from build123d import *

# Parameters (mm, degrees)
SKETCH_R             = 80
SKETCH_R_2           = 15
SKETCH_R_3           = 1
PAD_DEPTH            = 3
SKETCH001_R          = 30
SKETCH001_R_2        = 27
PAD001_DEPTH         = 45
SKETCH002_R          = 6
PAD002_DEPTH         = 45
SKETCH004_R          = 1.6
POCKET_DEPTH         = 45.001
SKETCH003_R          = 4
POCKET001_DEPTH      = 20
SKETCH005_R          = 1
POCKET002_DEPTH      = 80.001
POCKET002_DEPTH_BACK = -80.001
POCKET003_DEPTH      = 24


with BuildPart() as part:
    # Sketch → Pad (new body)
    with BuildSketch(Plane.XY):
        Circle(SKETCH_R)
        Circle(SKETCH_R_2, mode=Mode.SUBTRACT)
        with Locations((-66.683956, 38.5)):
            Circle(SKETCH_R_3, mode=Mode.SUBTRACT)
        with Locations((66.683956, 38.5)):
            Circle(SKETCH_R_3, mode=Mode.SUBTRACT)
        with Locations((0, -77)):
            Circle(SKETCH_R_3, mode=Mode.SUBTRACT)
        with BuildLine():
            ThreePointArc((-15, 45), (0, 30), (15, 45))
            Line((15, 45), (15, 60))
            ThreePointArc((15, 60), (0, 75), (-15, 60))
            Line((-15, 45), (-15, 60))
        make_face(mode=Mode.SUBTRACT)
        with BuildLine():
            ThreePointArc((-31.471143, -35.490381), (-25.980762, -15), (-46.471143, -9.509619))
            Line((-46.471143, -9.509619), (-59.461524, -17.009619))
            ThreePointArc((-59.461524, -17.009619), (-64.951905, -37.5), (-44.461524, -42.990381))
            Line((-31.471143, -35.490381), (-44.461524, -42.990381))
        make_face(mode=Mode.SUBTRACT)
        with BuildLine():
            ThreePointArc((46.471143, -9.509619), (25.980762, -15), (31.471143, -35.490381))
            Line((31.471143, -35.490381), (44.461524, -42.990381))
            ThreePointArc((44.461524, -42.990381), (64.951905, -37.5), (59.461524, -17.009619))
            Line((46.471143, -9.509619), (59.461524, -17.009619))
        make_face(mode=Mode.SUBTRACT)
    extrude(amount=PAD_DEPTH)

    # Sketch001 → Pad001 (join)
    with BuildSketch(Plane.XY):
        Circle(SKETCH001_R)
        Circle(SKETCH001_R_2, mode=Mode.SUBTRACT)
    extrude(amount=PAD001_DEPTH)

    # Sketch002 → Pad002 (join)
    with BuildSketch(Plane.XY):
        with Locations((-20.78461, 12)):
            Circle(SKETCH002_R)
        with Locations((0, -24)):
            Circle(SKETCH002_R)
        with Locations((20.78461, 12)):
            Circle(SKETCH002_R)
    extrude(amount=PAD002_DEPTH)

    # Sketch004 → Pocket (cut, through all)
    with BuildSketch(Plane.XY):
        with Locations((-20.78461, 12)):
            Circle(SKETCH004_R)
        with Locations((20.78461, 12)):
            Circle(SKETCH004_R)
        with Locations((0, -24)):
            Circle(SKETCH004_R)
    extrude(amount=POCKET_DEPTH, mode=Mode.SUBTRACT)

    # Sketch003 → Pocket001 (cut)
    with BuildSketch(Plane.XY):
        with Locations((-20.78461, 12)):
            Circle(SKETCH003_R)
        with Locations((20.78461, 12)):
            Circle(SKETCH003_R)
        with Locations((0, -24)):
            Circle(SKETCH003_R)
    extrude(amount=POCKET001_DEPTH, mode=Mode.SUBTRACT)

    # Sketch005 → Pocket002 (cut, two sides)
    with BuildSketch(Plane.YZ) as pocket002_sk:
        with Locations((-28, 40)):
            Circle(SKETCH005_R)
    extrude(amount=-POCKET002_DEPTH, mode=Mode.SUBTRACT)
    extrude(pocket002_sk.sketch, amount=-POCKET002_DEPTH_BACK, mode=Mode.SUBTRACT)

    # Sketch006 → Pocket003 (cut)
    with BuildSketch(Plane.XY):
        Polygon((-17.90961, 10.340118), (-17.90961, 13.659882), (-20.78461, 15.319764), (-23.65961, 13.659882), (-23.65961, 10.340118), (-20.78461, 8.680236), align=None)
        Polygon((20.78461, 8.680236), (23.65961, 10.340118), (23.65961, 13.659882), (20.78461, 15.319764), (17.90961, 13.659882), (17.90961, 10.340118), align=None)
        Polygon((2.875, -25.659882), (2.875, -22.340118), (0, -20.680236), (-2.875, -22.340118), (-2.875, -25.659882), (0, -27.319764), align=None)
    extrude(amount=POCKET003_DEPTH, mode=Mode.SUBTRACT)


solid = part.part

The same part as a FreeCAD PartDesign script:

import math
import FreeCAD as App
import Part
import Sketcher
Q = App.Units.Quantity


def add_polygon(sketch, points):
    """Adds a closed chain of lines whose ends are joined by coincident constraints."""
    first, n = sketch.GeometryCount, len(points)
    for a, b in zip(points, points[1:] + points[:1]):
        sketch.addGeometry(Part.LineSegment(App.Vector(*a, 0), App.Vector(*b, 0)), False)
    for i in range(n):
        sketch.addConstraint(Sketcher.Constraint("Coincident", first + i, 2, first + (i + 1) % n, 1))

doc = App.newDocument("Part")
body = doc.addObject("PartDesign::Body", "Body")

sketch1 = doc.addObject("Sketcher::SketchObject", "Sketch")
body.addObject(sketch1)
sketch1.AttachmentSupport = (doc.XY_Plane, [""])
sketch1.MapMode = "FlatFace"
sketch1.addGeometry(Part.Circle(App.Vector(0, 0, 0), App.Vector(0, 0, 1), 80), False)
sketch1.addGeometry(Part.ArcOfCircle(Part.Circle(App.Vector(-39, -22.5, 0), App.Vector(0, 0, 1), 15), math.radians(-60), math.radians(120)), False)
sketch1.addGeometry(Part.LineSegment(App.Vector(-31.5, -35.5, 0), App.Vector(-44.5, -43, 0)), False)
sketch1.addGeometry(Part.ArcOfCircle(Part.Circle(App.Vector(-52, -30, 0), App.Vector(0, 0, 1), 15), math.radians(120), math.radians(300)), False)
sketch1.addGeometry(Part.LineSegment(App.Vector(-59.5, -17, 0), App.Vector(-46.5, -9.5, 0)), False)
sketch1.addGeometry(Part.Circle(App.Vector(0, -77, 0), App.Vector(0, 0, 1), 1), False)
sketch1.addGeometry(Part.ArcOfCircle(Part.Circle(App.Vector(39, -22.5, 0), App.Vector(0, 0, 1), 15), math.radians(60), math.radians(240)), False)
sketch1.addGeometry(Part.LineSegment(App.Vector(46.5, -9.5, 0), App.Vector(59.5, -17, 0)), False)
sketch1.addGeometry(Part.ArcOfCircle(Part.Circle(App.Vector(52, -30, 0), App.Vector(0, 0, 1), 15), math.radians(-120), math.radians(60)), False)
sketch1.addGeometry(Part.LineSegment(App.Vector(44.5, -43, 0), App.Vector(31.5, -35.5, 0)), False)
sketch1.addGeometry(Part.Circle(App.Vector(-66.7, 38.5, 0), App.Vector(0, 0, 1), 1), False)
sketch1.addGeometry(Part.Circle(App.Vector(0, 0, 0), App.Vector(0, 0, 1), 15), False)
sketch1.addGeometry(Part.ArcOfCircle(Part.Circle(App.Vector(0, 45, 0), App.Vector(0, 0, 1), 15), math.radians(180), math.radians(360)), False)
sketch1.addGeometry(Part.LineSegment(App.Vector(-15, 45, 0), App.Vector(-15, 60, 0)), False)
sketch1.addGeometry(Part.ArcOfCircle(Part.Circle(App.Vector(0, 60, 0), App.Vector(0, 0, 1), 15), math.radians(0), math.radians(180)), False)
sketch1.addGeometry(Part.LineSegment(App.Vector(15, 60, 0), App.Vector(15, 45, 0)), False)
sketch1.addGeometry(Part.Circle(App.Vector(66.7, 38.5, 0), App.Vector(0, 0, 1), 1), False)
sketch1.addConstraint(Sketcher.Constraint("Tangent", 1, 1, 2, 1))
sketch1.addConstraint(Sketcher.Constraint("Tangent", 2, 2, 3, 2))
sketch1.addConstraint(Sketcher.Constraint("Tangent", 3, 1, 4, 1))
sketch1.addConstraint(Sketcher.Constraint("Tangent", 4, 2, 1, 2))
sketch1.addConstraint(Sketcher.Constraint("Tangent", 6, 1, 7, 1))
sketch1.addConstraint(Sketcher.Constraint("Tangent", 7, 2, 8, 2))
sketch1.addConstraint(Sketcher.Constraint("Tangent", 8, 1, 9, 1))
sketch1.addConstraint(Sketcher.Constraint("Tangent", 9, 2, 6, 2))
sketch1.addConstraint(Sketcher.Constraint("Tangent", 12, 1, 13, 1))
sketch1.addConstraint(Sketcher.Constraint("Tangent", 13, 2, 14, 2))
sketch1.addConstraint(Sketcher.Constraint("Tangent", 14, 1, 15, 1))
sketch1.addConstraint(Sketcher.Constraint("Tangent", 15, 2, 12, 2))
sketch1.addConstraint(Sketcher.Constraint("Vertical", 13))
sketch1.addConstraint(Sketcher.Constraint("Vertical", 15))
sketch1.addConstraint(Sketcher.Constraint("Coincident", 0, 3, -1, 1))
sketch1.addConstraint(Sketcher.Constraint("Coincident", 11, 3, -1, 1))
sketch1.addConstraint(Sketcher.Constraint("Equal", 1, 3))
sketch1.addConstraint(Sketcher.Constraint("Equal", 3, 6))
sketch1.addConstraint(Sketcher.Constraint("Equal", 6, 8))
sketch1.addConstraint(Sketcher.Constraint("Equal", 5, 10))
sketch1.addConstraint(Sketcher.Constraint("Equal", 8, 11))
sketch1.addConstraint(Sketcher.Constraint("Equal", 11, 12))
sketch1.addConstraint(Sketcher.Constraint("Equal", 10, 16))
sketch1.addConstraint(Sketcher.Constraint("Symmetric", 1, 3, 6, 3, -2))
sketch1.addConstraint(Sketcher.Constraint("Symmetric", 3, 3, 8, 3, -2))
sketch1.addConstraint(Sketcher.Constraint("Symmetric", 10, 3, 16, 3, -2))
sketch1.addConstraint(Sketcher.Constraint("PointOnObject", 5, 3, -2))
sketch1.addConstraint(Sketcher.Constraint("PointOnObject", 12, 3, -2))
sketch1.addConstraint(Sketcher.Constraint("Diameter", 0, Q("160 mm")))
sketch1.addConstraint(Sketcher.Constraint("Diameter", 5, Q("2 mm")))
sketch1.addConstraint(Sketcher.Constraint("Diameter", 11, Q("30 mm")))
sketch1.addConstraint(Sketcher.Constraint("DistanceY", 13, 1, 13, 2, Q("15 mm")))
sketch1.addConstraint(Sketcher.Constraint("Angle", 2, Q("-150 deg")))
sketch1.addConstraint(Sketcher.Constraint("Distance", 2, Q("15 mm")))
sketch1.addConstraint(Sketcher.Constraint("DistanceY", 3, 3, -1, 1, Q("30 mm")))
sketch1.addConstraint(Sketcher.Constraint("DistanceY", 5, 3, -1, 1, Q("77 mm")))
sketch1.addConstraint(Sketcher.Constraint("DistanceY", -1, 1, 12, 3, Q("45 mm")))
sketch1.addConstraint(Sketcher.Constraint("DistanceY", 1, 3, 10, 3, Q("61 mm")))
sketch1.addConstraint(Sketcher.Constraint("DistanceX", 10, 3, 6, 3, Q("105.655099 mm")))
sketch1.addConstraint(Sketcher.Constraint("DistanceX", 10, 3, 3, 3, Q("14.722432 mm")))
pad1 = doc.addObject("PartDesign::Pad", "Pad")
body.addObject(pad1)
pad1.Profile = sketch1
pad1.Length = 3

sketch2 = doc.addObject("Sketcher::SketchObject", "Sketch001")
body.addObject(sketch2)
sketch2.AttachmentSupport = (doc.XY_Plane, [""])
sketch2.MapMode = "FlatFace"
sketch2.addGeometry(Part.Circle(App.Vector(0, 0, 0), App.Vector(0, 0, 1), 30), False)
sketch2.addGeometry(Part.Circle(App.Vector(0, 0, 0), App.Vector(0, 0, 1), 27), False)
sketch2.addConstraint(Sketcher.Constraint("Coincident", 0, 3, -1, 1))
sketch2.addConstraint(Sketcher.Constraint("Coincident", 1, 3, -1, 1))
sketch2.addConstraint(Sketcher.Constraint("Diameter", 0, Q("60 mm")))
sketch2.addConstraint(Sketcher.Constraint("Diameter", 1, Q("54 mm")))
pad2 = doc.addObject("PartDesign::Pad", "Pad001")
body.addObject(pad2)
pad2.Profile = sketch2
pad2.Length = 45

sketch3 = doc.addObject("Sketcher::SketchObject", "Sketch002")
body.addObject(sketch3)
sketch3.AttachmentSupport = (doc.XY_Plane, [""])
sketch3.MapMode = "FlatFace"
sketch3.addGeometry(Part.Circle(App.Vector(-21, 12, 0), App.Vector(0, 0, 1), 6), False)
sketch3.addGeometry(Part.Circle(App.Vector(0, -24, 0), App.Vector(0, 0, 1), 6), False)
sketch3.addGeometry(Part.Circle(App.Vector(21, 12, 0), App.Vector(0, 0, 1), 6), False)
sketch3.addConstraint(Sketcher.Constraint("Equal", 0, 1))
sketch3.addConstraint(Sketcher.Constraint("Equal", 1, 2))
sketch3.addConstraint(Sketcher.Constraint("Symmetric", 0, 3, 2, 3, -2))
sketch3.addConstraint(Sketcher.Constraint("PointOnObject", 1, 3, -2))
sketch3.addConstraint(Sketcher.Constraint("Diameter", 0, Q("12 mm")))
sketch3.addConstraint(Sketcher.Constraint("DistanceY", -1, 1, 0, 3, Q("12 mm")))
sketch3.addConstraint(Sketcher.Constraint("DistanceY", 1, 3, -1, 1, Q("24 mm")))
sketch3.addConstraint(Sketcher.Constraint("DistanceX", 0, 3, -1, 1, Q("20.78461 mm")))
pad3 = doc.addObject("PartDesign::Pad", "Pad002")
body.addObject(pad3)
pad3.Profile = sketch3
pad3.Length = 45

sketch4 = doc.addObject("Sketcher::SketchObject", "Sketch003")
body.addObject(sketch4)
sketch4.AttachmentSupport = (doc.XY_Plane, [""])
sketch4.MapMode = "FlatFace"
sketch4.addGeometry(Part.Circle(App.Vector(-20.8, 12, 0), App.Vector(0, 0, 1), 1.6), False)
sketch4.addGeometry(Part.Circle(App.Vector(20.8, 12, 0), App.Vector(0, 0, 1), 1.6), False)
sketch4.addGeometry(Part.Circle(App.Vector(0, -24, 0), App.Vector(0, 0, 1), 1.6), False)
sketch4.addConstraint(Sketcher.Constraint("Equal", 0, 1))
sketch4.addConstraint(Sketcher.Constraint("Equal", 1, 2))
sketch4.addConstraint(Sketcher.Constraint("Symmetric", 0, 3, 1, 3, -2))
sketch4.addConstraint(Sketcher.Constraint("PointOnObject", 2, 3, -2))
sketch4.addConstraint(Sketcher.Constraint("Diameter", 0, Q("3.2 mm")))
sketch4.addConstraint(Sketcher.Constraint("DistanceY", -1, 1, 0, 3, Q("12 mm")))
sketch4.addConstraint(Sketcher.Constraint("DistanceY", 2, 3, -1, 1, Q("24 mm")))
sketch4.addConstraint(Sketcher.Constraint("DistanceX", 0, 3, -1, 1, Q("20.78461 mm")))
pocket1 = doc.addObject("PartDesign::Pocket", "Pocket")
body.addObject(pocket1)
pocket1.Profile = sketch4
pocket1.Type = "ThroughAll"
pocket1.Reversed = True

sketch5 = doc.addObject("Sketcher::SketchObject", "Sketch004")
body.addObject(sketch5)
sketch5.AttachmentSupport = (doc.XY_Plane, [""])
sketch5.MapMode = "FlatFace"
sketch5.addGeometry(Part.Circle(App.Vector(-20.8, 12, 0), App.Vector(0, 0, 1), 4), False)
sketch5.addGeometry(Part.Circle(App.Vector(20.8, 12, 0), App.Vector(0, 0, 1), 4), False)
sketch5.addGeometry(Part.Circle(App.Vector(0, -24, 0), App.Vector(0, 0, 1), 4), False)
sketch5.addConstraint(Sketcher.Constraint("Equal", 0, 1))
sketch5.addConstraint(Sketcher.Constraint("Equal", 1, 2))
sketch5.addConstraint(Sketcher.Constraint("Symmetric", 0, 3, 1, 3, -2))
sketch5.addConstraint(Sketcher.Constraint("PointOnObject", 2, 3, -2))
sketch5.addConstraint(Sketcher.Constraint("Diameter", 0, Q("8 mm")))
sketch5.addConstraint(Sketcher.Constraint("DistanceY", -1, 1, 0, 3, Q("12 mm")))
sketch5.addConstraint(Sketcher.Constraint("DistanceY", 2, 3, -1, 1, Q("24 mm")))
sketch5.addConstraint(Sketcher.Constraint("DistanceX", 0, 3, -1, 1, Q("20.78461 mm")))
pocket2 = doc.addObject("PartDesign::Pocket", "Pocket001")
body.addObject(pocket2)
pocket2.Profile = sketch5
pocket2.Length = 20
pocket2.Reversed = True

sketch6 = doc.addObject("Sketcher::SketchObject", "Sketch005")
body.addObject(sketch6)
sketch6.AttachmentSupport = (doc.YZ_Plane, [""])
sketch6.MapMode = "FlatFace"
sketch6.addGeometry(Part.Circle(App.Vector(-28, 40, 0), App.Vector(0, 0, 1), 1), False)
sketch6.addConstraint(Sketcher.Constraint("Diameter", 0, Q("2 mm")))
sketch6.addConstraint(Sketcher.Constraint("DistanceX", 0, 3, -1, 1, Q("28 mm")))
sketch6.addConstraint(Sketcher.Constraint("DistanceY", -1, 1, 0, 3, Q("40 mm")))
pocket3 = doc.addObject("PartDesign::Pocket", "Pocket002")
body.addObject(pocket3)
pocket3.Profile = sketch6
pocket3.Type = "ThroughAll"
pocket3.Midplane = True

sketch7 = doc.addObject("Sketcher::SketchObject", "Sketch006")
body.addObject(sketch7)
sketch7.AttachmentSupport = (doc.XY_Plane, [""])
sketch7.MapMode = "FlatFace"
add_polygon(sketch7, [(-17.9, 10.3), (-17.9, 13.7), (-20.8, 15.3), (-23.7, 13.7), (-23.7, 10.3), (-20.8, 8.7)])
add_polygon(sketch7, [(20.8, 8.7), (23.7, 10.3), (23.7, 13.7), (20.8, 15.3), (17.9, 13.7), (17.9, 10.3)])
add_polygon(sketch7, [(2.9, -25.7), (2.9, -22.3), (0, -20.7), (-2.9, -22.3), (-2.9, -25.7), (0, -27.3)])
sketch7.addConstraint(Sketcher.Constraint("Vertical", 0))
sketch7.addConstraint(Sketcher.Constraint("Vertical", 3))
sketch7.addConstraint(Sketcher.Constraint("Vertical", 7))
sketch7.addConstraint(Sketcher.Constraint("Vertical", 10))
sketch7.addConstraint(Sketcher.Constraint("Vertical", 12))
sketch7.addConstraint(Sketcher.Constraint("Vertical", 15))
sketch7.addConstraint(Sketcher.Constraint("Symmetric", 3, 2, 6, 2, -2))
sketch7.addConstraint(Sketcher.Constraint("Symmetric", 1, 2, 8, 2, -2))
sketch7.addConstraint(Sketcher.Constraint("Symmetric", 0, 2, 9, 2, -2))
sketch7.addConstraint(Sketcher.Constraint("Symmetric", 4, 2, 11, 2, -2))
sketch7.addConstraint(Sketcher.Constraint("Symmetric", 12, 2, 14, 2, -2))
sketch7.addConstraint(Sketcher.Constraint("PointOnObject", 13, 2, -2))
sketch7.addConstraint(Sketcher.Constraint("PointOnObject", 16, 2, -2))
sketch7.addConstraint(Sketcher.Constraint("Parallel", 1, 4))
sketch7.addConstraint(Sketcher.Constraint("Parallel", 2, 5))
sketch7.addConstraint(Sketcher.Constraint("Parallel", 5, 6))
sketch7.addConstraint(Sketcher.Constraint("Parallel", 4, 8))
sketch7.addConstraint(Sketcher.Constraint("Parallel", 8, 11))
sketch7.addConstraint(Sketcher.Constraint("Parallel", 11, 13))
sketch7.addConstraint(Sketcher.Constraint("Parallel", 13, 16))
sketch7.addConstraint(Sketcher.Constraint("Parallel", 14, 17))
sketch7.addConstraint(Sketcher.Constraint("Horizontal", 0, 2, 2, 2))
sketch7.addConstraint(Sketcher.Constraint("Horizontal", 3, 2, 5, 2))
sketch7.addConstraint(Sketcher.Constraint("Equal", 10, 12))
sketch7.addConstraint(Sketcher.Constraint("Equal", 11, 13))
sketch7.addConstraint(Sketcher.Constraint("Angle", 1, Q("150 deg")))
sketch7.addConstraint(Sketcher.Constraint("DistanceY", 12, 2, 9, 2, Q("36 mm")))
sketch7.addConstraint(Sketcher.Constraint("DistanceX", 2, 2, 0, 2, Q("5.75 mm")))
sketch7.addConstraint(Sketcher.Constraint("DistanceY", 0, 1, 0, 2, Q("3.319764 mm")))
sketch7.addConstraint(Sketcher.Constraint("DistanceX", 0, 2, -1, 1, Q("17.90961 mm")))
sketch7.addConstraint(Sketcher.Constraint("DistanceY", 12, 2, -1, 1, Q("22.340118 mm")))
pocket4 = doc.addObject("PartDesign::Pocket", "Pocket003")
body.addObject(pocket4)
pocket4.Profile = sketch7
pocket4.Length = 24
pocket4.Reversed = True

doc.recompute()
